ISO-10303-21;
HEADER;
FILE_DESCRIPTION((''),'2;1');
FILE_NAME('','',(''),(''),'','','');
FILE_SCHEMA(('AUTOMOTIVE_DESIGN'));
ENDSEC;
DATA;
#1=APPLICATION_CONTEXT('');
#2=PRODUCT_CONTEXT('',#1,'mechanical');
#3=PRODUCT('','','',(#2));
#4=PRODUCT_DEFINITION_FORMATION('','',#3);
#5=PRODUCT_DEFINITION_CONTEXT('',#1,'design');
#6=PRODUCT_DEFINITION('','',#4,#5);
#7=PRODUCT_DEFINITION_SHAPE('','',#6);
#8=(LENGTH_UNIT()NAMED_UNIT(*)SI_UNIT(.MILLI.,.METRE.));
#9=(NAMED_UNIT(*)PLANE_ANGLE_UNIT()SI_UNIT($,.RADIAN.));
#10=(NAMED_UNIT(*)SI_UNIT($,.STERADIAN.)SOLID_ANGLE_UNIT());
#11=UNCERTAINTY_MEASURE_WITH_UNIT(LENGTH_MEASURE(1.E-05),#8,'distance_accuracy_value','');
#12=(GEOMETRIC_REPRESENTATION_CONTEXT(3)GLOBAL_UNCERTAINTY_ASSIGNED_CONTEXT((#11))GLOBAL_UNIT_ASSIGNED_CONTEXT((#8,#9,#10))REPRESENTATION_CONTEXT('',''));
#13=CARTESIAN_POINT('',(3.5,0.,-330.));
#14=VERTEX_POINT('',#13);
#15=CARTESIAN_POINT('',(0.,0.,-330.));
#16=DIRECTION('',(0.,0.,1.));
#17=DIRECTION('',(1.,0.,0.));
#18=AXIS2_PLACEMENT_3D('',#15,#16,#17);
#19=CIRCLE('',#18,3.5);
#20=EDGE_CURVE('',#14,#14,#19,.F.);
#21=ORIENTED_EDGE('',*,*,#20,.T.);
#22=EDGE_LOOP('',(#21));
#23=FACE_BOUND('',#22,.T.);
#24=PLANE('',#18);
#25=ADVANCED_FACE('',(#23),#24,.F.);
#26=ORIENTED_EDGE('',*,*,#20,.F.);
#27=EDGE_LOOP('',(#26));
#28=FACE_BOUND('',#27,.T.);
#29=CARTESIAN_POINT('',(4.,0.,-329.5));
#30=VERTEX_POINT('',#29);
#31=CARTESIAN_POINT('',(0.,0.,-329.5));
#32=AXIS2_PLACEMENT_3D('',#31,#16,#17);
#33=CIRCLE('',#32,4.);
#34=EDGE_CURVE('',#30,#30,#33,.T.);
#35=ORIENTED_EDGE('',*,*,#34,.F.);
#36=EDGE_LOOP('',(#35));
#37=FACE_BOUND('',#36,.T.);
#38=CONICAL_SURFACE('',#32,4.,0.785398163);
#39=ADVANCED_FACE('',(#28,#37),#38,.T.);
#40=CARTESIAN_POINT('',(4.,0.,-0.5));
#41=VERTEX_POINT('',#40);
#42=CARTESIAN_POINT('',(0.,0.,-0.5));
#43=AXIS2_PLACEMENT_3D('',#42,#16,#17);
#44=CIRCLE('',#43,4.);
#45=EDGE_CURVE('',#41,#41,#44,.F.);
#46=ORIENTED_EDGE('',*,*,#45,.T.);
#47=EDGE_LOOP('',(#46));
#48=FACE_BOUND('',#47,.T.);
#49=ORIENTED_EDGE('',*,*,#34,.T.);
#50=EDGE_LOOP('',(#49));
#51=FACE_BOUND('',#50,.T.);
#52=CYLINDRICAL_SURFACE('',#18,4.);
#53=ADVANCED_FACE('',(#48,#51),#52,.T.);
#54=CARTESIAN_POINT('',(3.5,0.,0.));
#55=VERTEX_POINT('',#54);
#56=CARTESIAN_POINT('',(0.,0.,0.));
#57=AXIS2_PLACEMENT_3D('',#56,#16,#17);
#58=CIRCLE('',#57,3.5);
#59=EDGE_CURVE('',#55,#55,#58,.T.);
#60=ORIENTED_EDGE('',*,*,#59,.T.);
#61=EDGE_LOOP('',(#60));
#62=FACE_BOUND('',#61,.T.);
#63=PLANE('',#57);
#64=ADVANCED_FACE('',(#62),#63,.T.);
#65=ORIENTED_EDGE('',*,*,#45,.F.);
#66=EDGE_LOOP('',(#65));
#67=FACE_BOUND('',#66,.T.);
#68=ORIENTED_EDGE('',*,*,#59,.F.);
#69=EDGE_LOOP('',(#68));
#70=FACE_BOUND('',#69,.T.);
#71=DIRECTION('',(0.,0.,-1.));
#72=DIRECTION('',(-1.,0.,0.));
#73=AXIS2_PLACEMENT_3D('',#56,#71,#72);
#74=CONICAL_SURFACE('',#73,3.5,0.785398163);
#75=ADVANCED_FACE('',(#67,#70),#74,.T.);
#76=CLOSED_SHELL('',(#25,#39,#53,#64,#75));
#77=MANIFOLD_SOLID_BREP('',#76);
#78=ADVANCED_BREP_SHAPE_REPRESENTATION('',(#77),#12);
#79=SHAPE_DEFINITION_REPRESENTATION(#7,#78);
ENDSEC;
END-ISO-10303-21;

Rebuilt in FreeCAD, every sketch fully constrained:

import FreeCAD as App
import Part
import Sketcher


def edges_at(feature, points):
    """Names of the edges that pass closest to the given points."""
    edges = feature.Shape.Edges
    near = lambda p: min(range(len(edges)), key=lambda i: edges[i].distToShape(Part.Vertex(*p))[0])
    return sorted({f"Edge{near(p) + 1}" for p in points})

doc = App.newDocument("Part")
params = doc.addObject("Spreadsheet::Sheet", "Params")
for row, (alias, value) in enumerate([
    ("sketch1_diameter", "8 mm"),
    ("pad1_length", "330 mm"),
    ("chamfer_size", "0.5 mm"),
], start=1):
    params.set(f"A{row}", alias)
    params.set(f"B{row}", "=" + value)
    params.setAlias(f"B{row}", alias)

body = doc.addObject("PartDesign::Body", "Body")

# Sketch on XY plane
sketch1 = doc.addObject("Sketcher::SketchObject", "Sketch")
body.addObject(sketch1)
sketch1.AttachmentSupport = (doc.XY_Plane, [""])
sketch1.MapMode = "FlatFace"
sketch1.addGeometry(Part.Circle(App.Vector(0, 0, 0), App.Vector(0, 0, 1), 4), False)
sketch1.addConstraint([
    Sketcher.Constraint("Coincident", 0, 3, -1, 1),
    Sketcher.Constraint("Diameter", 0, 8.0),
])
sketch1.setExpression("Constraints[1]", "Params.sketch1_diameter")
pad1 = doc.addObject("PartDesign::Pad", "Pad")
body.addObject(pad1)
pad1.Profile = sketch1
pad1.setExpression("Length", "Params.pad1_length")
pad1.Reversed = True
doc.recompute()

chamfer = doc.addObject("PartDesign::Chamfer", "Chamfer")
body.addObject(chamfer)
chamfer.Base = (pad1, edges_at(pad1, [(-4, 0, 0), (-4, 0, -330)]))
chamfer.setExpression("Size", "Params.chamfer_size")

doc.recompute()
